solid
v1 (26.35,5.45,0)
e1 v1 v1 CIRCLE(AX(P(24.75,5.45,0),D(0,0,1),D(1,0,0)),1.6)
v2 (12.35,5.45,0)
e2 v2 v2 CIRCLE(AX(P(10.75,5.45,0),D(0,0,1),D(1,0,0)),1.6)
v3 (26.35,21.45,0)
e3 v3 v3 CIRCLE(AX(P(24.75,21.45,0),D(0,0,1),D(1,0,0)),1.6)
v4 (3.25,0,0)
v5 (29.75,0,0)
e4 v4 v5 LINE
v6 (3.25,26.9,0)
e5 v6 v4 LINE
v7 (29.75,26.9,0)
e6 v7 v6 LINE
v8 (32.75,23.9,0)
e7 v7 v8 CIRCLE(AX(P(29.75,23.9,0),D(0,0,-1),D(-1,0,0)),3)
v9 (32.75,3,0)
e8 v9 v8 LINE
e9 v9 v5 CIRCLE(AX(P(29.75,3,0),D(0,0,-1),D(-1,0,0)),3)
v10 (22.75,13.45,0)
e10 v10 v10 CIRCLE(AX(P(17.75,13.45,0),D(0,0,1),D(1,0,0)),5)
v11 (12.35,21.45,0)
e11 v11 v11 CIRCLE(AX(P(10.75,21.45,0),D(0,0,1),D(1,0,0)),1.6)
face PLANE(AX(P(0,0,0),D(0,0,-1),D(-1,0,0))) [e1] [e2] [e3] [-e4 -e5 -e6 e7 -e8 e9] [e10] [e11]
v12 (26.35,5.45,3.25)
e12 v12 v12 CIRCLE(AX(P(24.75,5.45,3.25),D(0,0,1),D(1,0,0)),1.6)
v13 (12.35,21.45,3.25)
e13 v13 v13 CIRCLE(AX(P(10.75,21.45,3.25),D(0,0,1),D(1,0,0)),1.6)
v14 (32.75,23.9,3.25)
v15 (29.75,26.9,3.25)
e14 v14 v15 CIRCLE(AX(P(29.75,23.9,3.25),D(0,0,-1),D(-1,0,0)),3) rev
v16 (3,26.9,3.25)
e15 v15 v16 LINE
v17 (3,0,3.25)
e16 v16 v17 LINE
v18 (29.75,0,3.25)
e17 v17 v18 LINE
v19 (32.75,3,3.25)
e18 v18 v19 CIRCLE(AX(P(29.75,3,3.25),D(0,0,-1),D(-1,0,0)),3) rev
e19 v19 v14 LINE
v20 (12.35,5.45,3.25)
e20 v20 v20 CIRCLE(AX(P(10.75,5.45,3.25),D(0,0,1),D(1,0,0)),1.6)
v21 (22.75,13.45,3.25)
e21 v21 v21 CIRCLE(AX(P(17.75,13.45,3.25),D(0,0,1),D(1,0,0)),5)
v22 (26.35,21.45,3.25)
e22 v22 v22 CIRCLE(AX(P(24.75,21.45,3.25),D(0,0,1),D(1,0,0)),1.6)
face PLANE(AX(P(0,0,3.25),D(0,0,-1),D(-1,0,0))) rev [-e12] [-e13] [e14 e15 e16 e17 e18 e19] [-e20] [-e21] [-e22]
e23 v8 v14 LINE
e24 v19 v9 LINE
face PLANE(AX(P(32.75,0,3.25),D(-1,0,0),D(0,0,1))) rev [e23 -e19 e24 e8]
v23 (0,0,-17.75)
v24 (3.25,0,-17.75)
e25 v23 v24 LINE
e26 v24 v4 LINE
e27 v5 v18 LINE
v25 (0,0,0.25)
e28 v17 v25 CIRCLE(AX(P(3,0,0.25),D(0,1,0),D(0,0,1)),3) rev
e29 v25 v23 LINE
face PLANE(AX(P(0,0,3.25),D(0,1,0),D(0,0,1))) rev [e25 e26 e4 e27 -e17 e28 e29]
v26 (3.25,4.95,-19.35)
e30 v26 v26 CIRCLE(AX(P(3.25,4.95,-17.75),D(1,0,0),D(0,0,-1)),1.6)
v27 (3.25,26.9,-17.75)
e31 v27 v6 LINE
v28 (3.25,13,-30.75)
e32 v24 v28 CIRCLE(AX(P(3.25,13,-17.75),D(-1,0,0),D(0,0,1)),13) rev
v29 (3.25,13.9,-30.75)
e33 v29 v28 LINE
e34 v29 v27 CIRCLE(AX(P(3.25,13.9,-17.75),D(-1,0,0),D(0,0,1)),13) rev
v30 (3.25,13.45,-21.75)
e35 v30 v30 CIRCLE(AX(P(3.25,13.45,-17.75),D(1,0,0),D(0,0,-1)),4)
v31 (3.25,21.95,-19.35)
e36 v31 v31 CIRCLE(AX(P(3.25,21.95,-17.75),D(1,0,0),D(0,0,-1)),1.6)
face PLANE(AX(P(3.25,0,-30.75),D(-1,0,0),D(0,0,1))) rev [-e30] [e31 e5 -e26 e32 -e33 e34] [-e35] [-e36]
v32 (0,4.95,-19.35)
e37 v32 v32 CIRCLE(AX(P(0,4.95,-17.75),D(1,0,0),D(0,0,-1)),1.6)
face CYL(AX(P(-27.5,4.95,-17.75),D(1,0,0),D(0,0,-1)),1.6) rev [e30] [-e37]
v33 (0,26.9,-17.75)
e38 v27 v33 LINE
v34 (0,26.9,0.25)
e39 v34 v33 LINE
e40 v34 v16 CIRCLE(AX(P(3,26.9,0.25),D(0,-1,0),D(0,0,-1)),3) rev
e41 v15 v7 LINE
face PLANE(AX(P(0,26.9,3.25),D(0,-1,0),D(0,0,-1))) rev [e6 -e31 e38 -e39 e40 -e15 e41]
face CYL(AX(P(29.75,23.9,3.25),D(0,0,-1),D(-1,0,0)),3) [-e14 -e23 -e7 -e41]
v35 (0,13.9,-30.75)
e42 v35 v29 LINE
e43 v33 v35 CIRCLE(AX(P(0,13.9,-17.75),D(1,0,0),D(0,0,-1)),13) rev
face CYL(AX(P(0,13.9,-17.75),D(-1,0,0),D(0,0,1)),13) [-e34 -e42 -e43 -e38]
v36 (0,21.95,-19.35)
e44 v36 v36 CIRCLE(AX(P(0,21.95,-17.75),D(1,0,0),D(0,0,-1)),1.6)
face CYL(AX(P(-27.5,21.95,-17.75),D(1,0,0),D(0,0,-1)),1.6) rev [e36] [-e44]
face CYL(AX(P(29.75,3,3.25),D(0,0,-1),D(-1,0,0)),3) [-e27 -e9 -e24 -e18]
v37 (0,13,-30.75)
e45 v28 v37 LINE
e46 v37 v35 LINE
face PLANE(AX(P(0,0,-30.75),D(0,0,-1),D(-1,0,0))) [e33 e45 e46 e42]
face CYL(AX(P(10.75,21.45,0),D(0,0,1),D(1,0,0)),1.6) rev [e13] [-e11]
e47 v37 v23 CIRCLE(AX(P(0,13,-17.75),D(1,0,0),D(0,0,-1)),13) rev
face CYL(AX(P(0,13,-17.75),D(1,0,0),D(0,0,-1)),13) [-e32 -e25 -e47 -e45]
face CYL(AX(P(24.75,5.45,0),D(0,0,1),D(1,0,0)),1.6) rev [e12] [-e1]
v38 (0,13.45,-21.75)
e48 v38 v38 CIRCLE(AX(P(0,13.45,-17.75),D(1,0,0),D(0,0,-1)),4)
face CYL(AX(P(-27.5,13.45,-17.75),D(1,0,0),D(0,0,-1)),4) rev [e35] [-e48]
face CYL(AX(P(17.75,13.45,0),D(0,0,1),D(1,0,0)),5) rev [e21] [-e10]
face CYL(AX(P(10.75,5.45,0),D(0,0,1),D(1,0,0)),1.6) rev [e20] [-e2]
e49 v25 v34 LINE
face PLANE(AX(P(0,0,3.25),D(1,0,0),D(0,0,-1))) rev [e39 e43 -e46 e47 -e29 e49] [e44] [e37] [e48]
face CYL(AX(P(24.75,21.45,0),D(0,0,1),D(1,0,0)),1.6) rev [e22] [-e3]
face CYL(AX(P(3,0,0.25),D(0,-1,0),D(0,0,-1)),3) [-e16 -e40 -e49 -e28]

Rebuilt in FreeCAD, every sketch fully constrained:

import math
import FreeCAD as App
import Part
import Sketcher
from FreeCAD import Vector
Q = App.Units.Quantity


def edges_at(feature, points):
    """Names of the edges that pass closest to the given points."""
    edges = feature.Shape.Edges
    near = lambda p: min(range(len(edges)), key=lambda i: edges[i].distToShape(Part.Vertex(*p))[0])
    return sorted({f"Edge{near(p) + 1}" for p in points})


def add_polygon(sketch, points):
    """Adds a closed chain of lines whose ends are joined by coincident constraints."""
    first, n = sketch.GeometryCount, len(points)
    for a, b in zip(points, points[1:] + points[:1]):
        sketch.addGeometry(Part.LineSegment(App.Vector(*a, 0), App.Vector(*b, 0)), False)
    for i in range(n):
        sketch.addConstraint(Sketcher.Constraint("Coincident", first + i, 2, first + (i + 1) % n, 1))

doc = App.newDocument("Part")
body = doc.addObject("PartDesign::Body", "Body")

# Sketch on XY plane
sketch1 = body.newObject("Sketcher::SketchObject", "Sketch")
sketch1.AttachmentSupport = (doc.getObject("XY_Plane"), [""])
sketch1.MapMode = "FlatFace"
add_polygon(sketch1, [(0, 27), (0, 0), (33, 0), (33, 27)])  # lines 0-3
sketch1.addConstraint([
    Sketcher.Constraint("Vertical", 0),
    Sketcher.Constraint("Horizontal", 1),
    Sketcher.Constraint("Vertical", 2),
    Sketcher.Constraint("Horizontal", 3),
    Sketcher.Constraint("Coincident", 0, 2, -1, 1),
    Sketcher.Constraint("DistanceY", 0, 2, 0, 1, Q("26.9 mm")),
    Sketcher.Constraint("DistanceX", 1, 1, 1, 2, Q("32.75 mm")),
])
pad1 = body.newObject("PartDesign::Pad", "Pad")
pad1.Profile = sketch1
pad1.Length = 3.25
doc.recompute()

fillet = body.newObject("PartDesign::Fillet", "Fillet")
fillet.Base = (pad1, edges_at(pad1, [(32.75, 26.9, 1.625), (32.75, 0, 1.625)]))
fillet.Radius = 3

# Sketch on XY plane
sketch2 = body.newObject("Sketcher::SketchObject", "Sketch001")
sketch2.AttachmentSupport = (doc.getObject("XY_Plane"), [""])
sketch2.MapMode = "FlatFace"
sketch2.AttachmentOffset = App.Placement(Vector(0, 0, 3.25), App.Rotation())
sketch2.addGeometry([
    Part.ArcOfCircle(Part.Circle(Vector(10.8, 21.4, 0), Vector(0, 0, 1), 1.6), math.radians(0), math.radians(270)),  # 0
    Part.ArcOfCircle(Part.Circle(Vector(10.8, 21.4, 0), Vector(0, 0, 1), 1.6), math.radians(-90), math.radians(0)),  # 1
    Part.Circle(Vector(17.8, 13.4, 0), Vector(0, 0, 1), 5),  # 2
    Part.Circle(Vector(24.8, 21.4, 0), Vector(0, 0, 1), 1.6),  # 3
    Part.Circle(Vector(24.8, 5.5, 0), Vector(0, 0, 1), 1.6),  # 4
    Part.Circle(Vector(10.8, 5.5, 0), Vector(0, 0, 1), 1.6),  # 5
], False)
sketch2.addConstraint([
    Sketcher.Constraint("Tangent", 0, 1, 1, 2),
    Sketcher.Constraint("Coincident", 1, 1, 0, 2),
    Sketcher.Constraint("Equal", 1, 3),
    Sketcher.Constraint("Equal", 3, 4),
    Sketcher.Constraint("Equal", 4, 5),
    Sketcher.Constraint("Horizontal", 1, 3, 3, 3),
    Sketcher.Constraint("Horizontal", 4, 3, 5, 3),
    Sketcher.Constraint("Horizontal", 3, 3, 0, 1),
    Sketcher.Constraint("Vertical", 3, 3, 4, 3),
    Sketcher.Constraint("Vertical", 1, 3, 5, 3),
    Sketcher.Constraint("Vertical", 5, 3, 1, 1),
    Sketcher.Constraint("Diameter", 2, Q("10 mm")),
    Sketcher.Constraint("Diameter", 3, Q("3.2 mm")),
    Sketcher.Constraint("DistanceX", 0, 3, 2, 3, Q("7 mm")),
    Sketcher.Constraint("DistanceY", 2, 3, 0, 3, Q("8 mm")),
    Sketcher.Constraint("DistanceX", 2, 3, 3, 3, Q("7 mm")),
    Sketcher.Constraint("DistanceY", 4, 3, 2, 3, Q("8 mm")),
    Sketcher.Constraint("DistanceX", -1, 1, 0, 3, Q("10.75 mm")),
    Sketcher.Constraint("DistanceY", -1, 1, 0, 3, Q("21.45 mm")),
])
pocket1 = body.newObject("PartDesign::Pocket", "Pocket")
pocket1.Profile = sketch2
pocket1.Length = 3.25

# Sketch on XY plane
sketch3 = body.newObject("Sketcher::SketchObject", "Sketch002")
sketch3.AttachmentSupport = (doc.getObject("XY_Plane"), [""])
sketch3.MapMode = "FlatFace"
add_polygon(sketch3, [(3.2, 26.9), (3.2, 0), (0, 0), (0, 26.9)])  # lines 0-3
sketch3.addConstraint([
    Sketcher.Constraint("Vertical", 0),
    Sketcher.Constraint("Horizontal", 1),
    Sketcher.Constraint("Vertical", 2),
    Sketcher.Constraint("Horizontal", 3),
    Sketcher.Constraint("Coincident", 1, 2, -1, 1),
    Sketcher.Constraint("DistanceY", 0, 2, 0, 1, Q("26.9 mm")),
    Sketcher.Constraint("DistanceX", 1, 2, 1, 1, Q("3.25 mm")),
])
pad2 = body.newObject("PartDesign::Pad", "Pad001")
pad2.Profile = sketch3
pad2.Length = 30.75
pad2.Reversed = True
doc.recompute()

fillet2 = body.newObject("PartDesign::Fillet", "Fillet001")
fillet2.Base = (pad2, edges_at(pad2, [(0, 13.45, 3.25)]))
fillet2.Radius = 3

# Sketch on YZ plane
sketch4 = body.newObject("Sketcher::SketchObject", "Sketch003")
sketch4.AttachmentSupport = (doc.getObject("YZ_Plane"), [""])
sketch4.MapMode = "FlatFace"
sketch4.AttachmentOffset = App.Placement(Vector(0, 0, 3.25), App.Rotation())
sketch4.addGeometry([
    Part.Circle(Vector(13.4, -17.8, 0), Vector(0, 0, 1), 4),
    Part.Circle(Vector(21.9, -17.8, 0), Vector(0, 0, 1), 1.6),
    Part.Circle(Vector(5, -17.8, 0), Vector(0, 0, 1), 1.6),
], False)
sketch4.addConstraint([
    Sketcher.Constraint("Equal", 1, 2),
    Sketcher.Constraint("Horizontal", 0, 3, 1, 3),
    Sketcher.Constraint("Horizontal", 1, 3, 2, 3),
    Sketcher.Constraint("Diameter", 0, Q("8 mm")),
    Sketcher.Constraint("Diameter", 1, Q("3.2 mm")),
    Sketcher.Constraint("DistanceX", 2, 3, 1, 3, Q("17 mm")),
    Sketcher.Constraint("DistanceX", 0, 3, 1, 3, Q("8.5 mm")),
    Sketcher.Constraint("DistanceX", -1, 1, 0, 3, Q("13.45 mm")),
    Sketcher.Constraint("DistanceY", 0, 3, -1, 1, Q("17.75 mm")),
])
pocket2 = body.newObject("PartDesign::Pocket", "Pocket001")
pocket2.Profile = sketch4
pocket2.Length = 30.75
doc.recompute()

fillet3 = body.newObject("PartDesign::Fillet", "Fillet002")
fillet3.Base = (pocket2, edges_at(pocket2, [(1.625, 26.9, -30.75), (1.625, 0, -30.75)]))
fillet3.Radius = 13

doc.recompute()
